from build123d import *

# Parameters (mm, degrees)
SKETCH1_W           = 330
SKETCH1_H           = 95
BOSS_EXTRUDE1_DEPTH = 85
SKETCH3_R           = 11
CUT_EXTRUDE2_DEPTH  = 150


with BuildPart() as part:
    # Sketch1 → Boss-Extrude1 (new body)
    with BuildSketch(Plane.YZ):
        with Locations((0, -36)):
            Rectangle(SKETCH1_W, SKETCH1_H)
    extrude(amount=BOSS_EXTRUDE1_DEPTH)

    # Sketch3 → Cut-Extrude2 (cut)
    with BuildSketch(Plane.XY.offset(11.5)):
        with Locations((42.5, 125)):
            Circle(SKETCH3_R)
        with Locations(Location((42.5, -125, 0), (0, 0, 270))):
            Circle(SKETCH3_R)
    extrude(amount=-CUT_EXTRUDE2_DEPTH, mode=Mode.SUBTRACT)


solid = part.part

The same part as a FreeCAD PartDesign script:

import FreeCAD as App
import Part
import Sketcher
from FreeCAD import Vector


def add_polygon(sketch, points):
    """Adds a closed chain of lines whose ends are joined by coincident constraints."""
    first, n = sketch.GeometryCount, len(points)
    for a, b in zip(points, points[1:] + points[:1]):
        sketch.addGeometry(Part.LineSegment(App.Vector(*a, 0), App.Vector(*b, 0)), False)
    for i in range(n):
        sketch.addConstraint(Sketcher.Constraint("Coincident", first + i, 2, first + (i + 1) % n, 1))

doc = App.newDocument("Part")
params = doc.addObject("Spreadsheet::Sheet", "Params")
for row, (alias, value) in enumerate([
    ("sketch1_width", "330 mm"),
    ("sketch1_height", "95 mm"),
    ("pad1_length", "85 mm"),
    ("sketch2_diameter", "22 mm"),
    ("pocket1_length", "150 mm"),
], start=1):
    params.set(f"A{row}", alias)
    params.set(f"B{row}", "=" + value)
    params.setAlias(f"B{row}", alias)

body = doc.addObject("PartDesign::Body", "Body")

# Sketch on YZ plane
sketch1 = body.newObject("Sketcher::SketchObject", "Sketch")
sketch1.AttachmentSupport = (doc.getObject("YZ_Plane"), [""])
sketch1.MapMode = "FlatFace"
add_polygon(sketch1, [(-165, 11.5), (-165, -83.5), (165, -83.5), (165, 11.5)])  # lines 0-3
sketch1.addConstraint(Sketcher.Constraint("Vertical", 0))
sketch1.addConstraint(Sketcher.Constraint("Horizontal", 1))
sketch1.addConstraint(Sketcher.Constraint("Vertical", 2))
sketch1.addConstraint(Sketcher.Constraint("Horizontal", 3))
sketch1.addConstraint(Sketcher.Constraint("DistanceX", 1, 1, 1, 2, 330.0))
sketch1.addConstraint(Sketcher.Constraint("DistanceY", 0, 2, 0, 1, 95.0))
sketch1.addConstraint(Sketcher.Constraint("DistanceX", 0, 2, -1, 1, 165.0))
sketch1.addConstraint(Sketcher.Constraint("DistanceY", 0, 2, -1, 1, 83.5))
sketch1.setExpression("Constraints[8]", "Params.sketch1_width")
sketch1.setExpression("Constraints[9]", "Params.sketch1_height")
pad1 = body.newObject("PartDesign::Pad", "Pad")
pad1.Profile = sketch1
pad1.setExpression("Length", "Params.pad1_length")

# Sketch on XY plane
sketch2 = body.newObject("Sketcher::SketchObject", "Sketch001")
sketch2.AttachmentSupport = (doc.getObject("XY_Plane"), [""])
sketch2.MapMode = "FlatFace"
sketch2.AttachmentOffset = App.Placement(Vector(0, 0, 11.5), App.Rotation())
sketch2.addGeometry(Part.Circle(Vector(42.5, 125, 0), Vector(0, 0, 1), 11), False)
sketch2.addGeometry(Part.Circle(Vector(42.5, -125, 0), Vector(0, 0, 1), 11), False)
sketch2.addConstraint(Sketcher.Constraint("Equal", 0, 1))
sketch2.addConstraint(Sketcher.Constraint("Symmetric", 0, 3, 1, 3, -1))
sketch2.addConstraint(Sketcher.Constraint("Diameter", 0, 22.0))
sketch2.addConstraint(Sketcher.Constraint("DistanceY", -1, 1, 0, 3, 125.0))
sketch2.addConstraint(Sketcher.Constraint("DistanceX", -1, 1, 0, 3, 42.5))
sketch2.setExpression("Constraints[2]", "Params.sketch2_diameter")
pocket1 = body.newObject("PartDesign::Pocket", "Pocket")
pocket1.Profile = sketch2
pocket1.setExpression("Length", "Params.pocket1_length")

doc.recompute()
